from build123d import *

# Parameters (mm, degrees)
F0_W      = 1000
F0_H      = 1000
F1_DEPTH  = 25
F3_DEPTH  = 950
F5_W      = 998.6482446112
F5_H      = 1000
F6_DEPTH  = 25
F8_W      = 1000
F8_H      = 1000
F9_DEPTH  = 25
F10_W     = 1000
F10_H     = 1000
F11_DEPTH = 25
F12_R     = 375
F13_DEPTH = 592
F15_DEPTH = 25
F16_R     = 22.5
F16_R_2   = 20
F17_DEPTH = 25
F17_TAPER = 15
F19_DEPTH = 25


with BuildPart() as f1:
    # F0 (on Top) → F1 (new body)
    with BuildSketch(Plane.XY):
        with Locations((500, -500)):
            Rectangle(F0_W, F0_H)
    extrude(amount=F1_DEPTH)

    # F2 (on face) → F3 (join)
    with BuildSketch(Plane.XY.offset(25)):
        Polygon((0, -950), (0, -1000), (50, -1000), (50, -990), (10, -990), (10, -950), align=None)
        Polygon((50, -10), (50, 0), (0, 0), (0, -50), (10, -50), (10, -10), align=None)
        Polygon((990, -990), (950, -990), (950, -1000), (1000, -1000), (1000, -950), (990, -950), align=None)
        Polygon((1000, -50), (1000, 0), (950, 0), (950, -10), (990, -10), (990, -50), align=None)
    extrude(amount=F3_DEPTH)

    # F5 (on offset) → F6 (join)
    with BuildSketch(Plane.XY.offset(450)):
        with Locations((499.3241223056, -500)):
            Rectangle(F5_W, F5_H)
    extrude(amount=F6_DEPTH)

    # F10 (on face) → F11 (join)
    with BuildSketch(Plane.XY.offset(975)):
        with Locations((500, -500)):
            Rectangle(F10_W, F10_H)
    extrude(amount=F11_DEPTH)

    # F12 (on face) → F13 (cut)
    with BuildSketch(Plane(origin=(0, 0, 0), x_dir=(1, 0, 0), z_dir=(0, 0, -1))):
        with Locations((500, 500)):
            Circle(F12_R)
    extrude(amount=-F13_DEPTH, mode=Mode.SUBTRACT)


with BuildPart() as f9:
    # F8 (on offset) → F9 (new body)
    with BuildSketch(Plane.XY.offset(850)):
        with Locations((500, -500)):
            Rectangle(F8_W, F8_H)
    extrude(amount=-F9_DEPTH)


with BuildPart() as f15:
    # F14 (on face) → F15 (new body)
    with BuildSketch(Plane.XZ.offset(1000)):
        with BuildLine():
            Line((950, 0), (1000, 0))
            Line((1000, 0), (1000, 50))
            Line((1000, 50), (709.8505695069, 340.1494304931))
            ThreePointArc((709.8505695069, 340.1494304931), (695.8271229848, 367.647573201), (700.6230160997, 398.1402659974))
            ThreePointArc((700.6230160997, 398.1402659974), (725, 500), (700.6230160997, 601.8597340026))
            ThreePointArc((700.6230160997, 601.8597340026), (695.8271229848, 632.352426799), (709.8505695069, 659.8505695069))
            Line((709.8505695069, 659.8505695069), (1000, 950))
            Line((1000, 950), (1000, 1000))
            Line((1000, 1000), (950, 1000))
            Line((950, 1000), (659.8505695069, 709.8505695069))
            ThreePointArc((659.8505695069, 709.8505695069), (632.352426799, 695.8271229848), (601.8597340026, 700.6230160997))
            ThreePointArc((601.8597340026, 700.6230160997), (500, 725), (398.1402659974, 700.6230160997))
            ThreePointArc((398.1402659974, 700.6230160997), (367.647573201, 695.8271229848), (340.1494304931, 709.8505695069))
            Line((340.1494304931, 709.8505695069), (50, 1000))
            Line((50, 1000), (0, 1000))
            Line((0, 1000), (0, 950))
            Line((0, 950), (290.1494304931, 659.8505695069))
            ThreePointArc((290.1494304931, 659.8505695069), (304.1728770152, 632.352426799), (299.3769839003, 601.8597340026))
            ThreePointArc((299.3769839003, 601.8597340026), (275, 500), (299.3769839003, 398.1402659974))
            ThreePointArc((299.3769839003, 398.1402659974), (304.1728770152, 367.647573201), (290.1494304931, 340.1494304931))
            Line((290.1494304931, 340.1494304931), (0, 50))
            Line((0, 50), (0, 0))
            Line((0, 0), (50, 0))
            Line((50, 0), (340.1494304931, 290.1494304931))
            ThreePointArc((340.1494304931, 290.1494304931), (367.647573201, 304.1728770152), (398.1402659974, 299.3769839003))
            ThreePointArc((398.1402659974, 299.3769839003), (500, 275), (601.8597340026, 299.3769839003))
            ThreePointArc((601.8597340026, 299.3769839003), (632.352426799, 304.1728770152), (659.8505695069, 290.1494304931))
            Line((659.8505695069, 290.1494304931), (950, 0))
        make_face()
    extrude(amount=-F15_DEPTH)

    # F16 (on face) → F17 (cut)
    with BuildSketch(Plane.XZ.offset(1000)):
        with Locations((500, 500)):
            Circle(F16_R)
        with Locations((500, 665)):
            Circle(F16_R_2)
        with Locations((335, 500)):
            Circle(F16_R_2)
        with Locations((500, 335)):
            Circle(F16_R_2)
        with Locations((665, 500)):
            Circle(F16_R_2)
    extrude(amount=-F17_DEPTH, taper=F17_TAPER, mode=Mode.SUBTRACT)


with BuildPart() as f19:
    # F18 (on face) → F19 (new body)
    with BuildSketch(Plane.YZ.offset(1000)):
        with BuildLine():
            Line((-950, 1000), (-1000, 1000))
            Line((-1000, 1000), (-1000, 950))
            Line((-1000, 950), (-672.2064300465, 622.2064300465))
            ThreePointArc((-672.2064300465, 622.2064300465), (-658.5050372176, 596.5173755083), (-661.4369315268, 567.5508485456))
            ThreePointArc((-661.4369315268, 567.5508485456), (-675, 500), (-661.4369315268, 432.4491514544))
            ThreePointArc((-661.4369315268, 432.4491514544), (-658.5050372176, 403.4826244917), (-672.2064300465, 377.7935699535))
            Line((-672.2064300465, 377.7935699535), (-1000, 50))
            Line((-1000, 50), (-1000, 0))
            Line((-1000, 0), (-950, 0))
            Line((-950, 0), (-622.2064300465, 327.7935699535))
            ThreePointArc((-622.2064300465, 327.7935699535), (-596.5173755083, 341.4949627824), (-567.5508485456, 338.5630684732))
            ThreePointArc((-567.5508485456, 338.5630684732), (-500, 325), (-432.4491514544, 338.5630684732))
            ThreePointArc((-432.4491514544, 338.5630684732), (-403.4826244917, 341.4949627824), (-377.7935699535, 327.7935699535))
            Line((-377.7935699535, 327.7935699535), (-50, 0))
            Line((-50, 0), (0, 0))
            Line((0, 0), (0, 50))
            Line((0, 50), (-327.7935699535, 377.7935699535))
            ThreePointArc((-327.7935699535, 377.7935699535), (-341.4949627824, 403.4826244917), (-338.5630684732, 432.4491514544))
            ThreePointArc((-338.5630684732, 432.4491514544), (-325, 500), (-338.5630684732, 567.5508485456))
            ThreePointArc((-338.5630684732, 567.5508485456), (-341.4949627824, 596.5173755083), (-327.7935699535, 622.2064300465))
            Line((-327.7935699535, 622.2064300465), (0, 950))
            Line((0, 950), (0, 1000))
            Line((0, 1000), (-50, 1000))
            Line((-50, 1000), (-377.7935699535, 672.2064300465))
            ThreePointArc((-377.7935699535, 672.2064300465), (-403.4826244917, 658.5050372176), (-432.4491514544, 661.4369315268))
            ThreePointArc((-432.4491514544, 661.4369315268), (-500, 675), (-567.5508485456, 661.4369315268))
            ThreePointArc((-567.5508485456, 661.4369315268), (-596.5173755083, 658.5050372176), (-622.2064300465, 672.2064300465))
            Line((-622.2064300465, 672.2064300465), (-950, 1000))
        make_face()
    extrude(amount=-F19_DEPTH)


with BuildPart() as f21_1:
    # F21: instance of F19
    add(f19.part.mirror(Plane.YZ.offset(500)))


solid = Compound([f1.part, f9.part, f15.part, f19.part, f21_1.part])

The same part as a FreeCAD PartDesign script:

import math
import FreeCAD as App
import Part
import Sketcher

V = App.Vector


def add_polygon(sketch, points):
    """Adds a closed chain of lines whose ends are joined by coincident constraints."""
    first, n = sketch.GeometryCount, len(points)
    for a, b in zip(points, points[1:] + points[:1]):
        sketch.addGeometry(Part.LineSegment(App.Vector(*a, 0), App.Vector(*b, 0)), False)
    for i in range(n):
        sketch.addConstraint(Sketcher.Constraint("Coincident", first + i, 2, first + (i + 1) % n, 1))

doc = App.newDocument("Part")
body = doc.addObject("PartDesign::Body", "Body")

sketch1 = body.newObject("Sketcher::SketchObject", "Sketch")
sketch1.AttachmentSupport = (doc.getObject("XY_Plane"), [""])
sketch1.MapMode = "FlatFace"
add_polygon(sketch1, [(0, 0), (0, -1000), (1000, -1000), (1000, 0)])
sketch1.addConstraint([
    Sketcher.Constraint("Vertical", 0),
    Sketcher.Constraint("Horizontal", 1),
    Sketcher.Constraint("Vertical", 2),
    Sketcher.Constraint("Horizontal", 3),
    Sketcher.Constraint("Coincident", 3, 2, -1, 1),
    Sketcher.Constraint("Equal", 3, 0),
    Sketcher.Constraint("DistanceX", 1, 1, 1, 2, 1000.0),
])
pad1 = body.newObject("PartDesign::Pad", "Pad")
pad1.Profile = sketch1
pad1.Length = 25

sketch2 = body.newObject("Sketcher::SketchObject", "Sketch001")
sketch2.AttachmentSupport = (doc.getObject("XY_Plane"), [""])
sketch2.MapMode = "FlatFace"
sketch2.AttachmentOffset = App.Placement(V(0, 0, 25), App.Rotation())
add_polygon(sketch2, [(0, -950), (0, -1000), (50, -1000), (50, -990), (10, -990), (10, -950)])
add_polygon(sketch2, [(50, -10), (50, 0), (0, 0), (0, -50), (10, -50), (10, -10)])
add_polygon(sketch2, [(990, -990), (950, -990), (950, -1000), (1000, -1000), (1000, -950), (990, -950)])
add_polygon(sketch2, [(1000, -50), (1000, 0), (950, 0), (950, -10), (990, -10), (990, -50)])
sketch2.addConstraint([
    Sketcher.Constraint("Vertical", 0),
    Sketcher.Constraint("Horizontal", 1),
    Sketcher.Constraint("Vertical", 2),
    Sketcher.Constraint("Horizontal", 3),
    Sketcher.Constraint("Vertical", 4),
    Sketcher.Constraint("Horizontal", 5),
    Sketcher.Constraint("Vertical", 6),
    Sketcher.Constraint("Horizontal", 7),
    Sketcher.Constraint("Vertical", 8),
    Sketcher.Constraint("Horizontal", 9),
    Sketcher.Constraint("Vertical", 10),
    Sketcher.Constraint("Horizontal", 11),
    Sketcher.Constraint("Horizontal", 12),
    Sketcher.Constraint("Vertical", 13),
    Sketcher.Constraint("Horizontal", 14),
    Sketcher.Constraint("Vertical", 15),
    Sketcher.Constraint("Horizontal", 16),
    Sketcher.Constraint("Vertical", 17),
    Sketcher.Constraint("Vertical", 18),
    Sketcher.Constraint("Horizontal", 19),
    Sketcher.Constraint("Vertical", 20),
    Sketcher.Constraint("Horizontal", 21),
    Sketcher.Constraint("Vertical", 22),
    Sketcher.Constraint("Horizontal", 23),
    Sketcher.Constraint("Coincident", 7, 2, -1, 1),
    Sketcher.Constraint("PointOnObject", 0, 2, -2),
    Sketcher.Constraint("PointOnObject", 18, 2, -1),
    Sketcher.Constraint("Horizontal", 3, 2, 12, 2),
    Sketcher.Constraint("Horizontal", 1, 2, 13, 2),
    Sketcher.Constraint("Horizontal", 5, 2, 15, 2),
    Sketcher.Constraint("Horizontal", 11, 2, 20, 2),
    Sketcher.Constraint("Horizontal", 9, 2, 22, 2),
    Sketcher.Constraint("Vertical", 2, 2, 6, 2),
    Sketcher.Constraint("Vertical", 4, 2, 9, 2),
    Sketcher.Constraint("Vertical", 15, 2, 18, 2),
    Sketcher.Constraint("Vertical", 13, 2, 19, 2),
    Sketcher.Constraint("Vertical", 17, 2, 21, 2),
    Sketcher.Constraint("Equal", 11, 12),
    Sketcher.Constraint("Equal", 7, 14),
    Sketcher.Constraint("Equal", 19, 0),
    Sketcher.Constraint("Equal", 23, 2),
    Sketcher.Constraint("Equal", 2, 6),
    Sketcher.Constraint("Equal", 0, 8),
    Sketcher.Constraint("DistanceX", 1, 1, 1, 2, 50.0),
    Sketcher.Constraint("DistanceX", 3, 2, 3, 1, 40.0),
    Sketcher.Constraint("DistanceY", 0, 2, -1, 1, 1000.0),
    Sketcher.Constraint("DistanceX", -1, 1, 12, 2, 950.0),
])
pad2 = body.newObject("PartDesign::Pad", "Pad001")
pad2.Profile = sketch2
pad2.Length = 950

sketch3 = body.newObject("Sketcher::SketchObject", "Sketch002")
sketch3.AttachmentSupport = (doc.getObject("XY_Plane"), [""])
sketch3.MapMode = "FlatFace"
sketch3.AttachmentOffset = App.Placement(V(0, 0, 450), App.Rotation())
add_polygon(sketch3, [(0, 0), (0, -1000), (999, -1000), (999, 0)])
sketch3.addConstraint([
    Sketcher.Constraint("Vertical", 0),
    Sketcher.Constraint("Horizontal", 1),
    Sketcher.Constraint("Vertical", 2),
    Sketcher.Constraint("Horizontal", 3),
    Sketcher.Constraint("Coincident", 3, 2, -1, 1),
    Sketcher.Constraint("DistanceY", 0, 2, 0, 1, 1000.0),
    Sketcher.Constraint("DistanceX", 1, 1, 1, 2, 998.648245),
])
pad3 = body.newObject("PartDesign::Pad", "Pad002")
pad3.Profile = sketch3
pad3.Length = 25

sketch4 = body.newObject("Sketcher::SketchObject", "Sketch003")
sketch4.AttachmentSupport = (doc.getObject("XY_Plane"), [""])
sketch4.MapMode = "FlatFace"
sketch4.AttachmentOffset = App.Placement(V(0, 0, 975), App.Rotation())
add_polygon(sketch4, [(0, 0), (0, -1000), (1000, -1000), (1000, 0)])
sketch4.addConstraint([
    Sketcher.Constraint("Vertical", 0),
    Sketcher.Constraint("Horizontal", 1),
    Sketcher.Constraint("Vertical", 2),
    Sketcher.Constraint("Horizontal", 3),
    Sketcher.Constraint("Coincident", 3, 2, -1, 1),
    Sketcher.Constraint("Equal", 3, 0),
    Sketcher.Constraint("DistanceX", 1, 1, 1, 2, 1000.0),
])
pad4 = body.newObject("PartDesign::Pad", "Pad003")
pad4.Profile = sketch4
pad4.Length = 25

sketch5 = body.newObject("Sketcher::SketchObject", "Sketch004")
sketch5.AttachmentSupport = (doc.getObject("XY_Plane"), [""])
sketch5.MapMode = "FlatFace"
sketch5.addGeometry(Part.Circle(V(500, -500, 0), V(0, 0, 1), 375), False)
sketch5.addConstraint([
    Sketcher.Constraint("Diameter", 0, 750.0),
    Sketcher.Constraint("DistanceX", -1, 1, 0, 3, 500.0),
    Sketcher.Constraint("DistanceY", 0, 3, -1, 1, 500.0),
])
pocket1 = body.newObject("PartDesign::Pocket", "Pocket")
pocket1.Profile = sketch5
pocket1.Length = 592
pocket1.Reversed = True
body2 = doc.addObject("PartDesign::Body", "Body001")

sketch6 = body2.newObject("Sketcher::SketchObject", "Sketch005")
sketch6.AttachmentSupport = (doc.getObject("XY_Plane001"), [""])
sketch6.MapMode = "FlatFace"
sketch6.AttachmentOffset = App.Placement(V(0, 0, 850), App.Rotation())
add_polygon(sketch6, [(0, 0), (0, -1000), (1000, -1000), (1000, 0)])
sketch6.addConstraint([
    Sketcher.Constraint("Vertical", 0),
    Sketcher.Constraint("Horizontal", 1),
    Sketcher.Constraint("Vertical", 2),
    Sketcher.Constraint("Horizontal", 3),
    Sketcher.Constraint("Coincident", 3, 2, -1, 1),
    Sketcher.Constraint("Equal", 3, 0),
    Sketcher.Constraint("DistanceX", 1, 1, 1, 2, 1000.0),
])
pad5 = body2.newObject("PartDesign::Pad", "Pad004")
pad5.Profile = sketch6
pad5.Length = 25
pad5.Reversed = True
body3 = doc.addObject("PartDesign::Body", "Body002")

sketch7 = body3.newObject("Sketcher::SketchObject", "Sketch006")
sketch7.AttachmentSupport = (doc.getObject("XZ_Plane002"), [""])
sketch7.MapMode = "FlatFace"
sketch7.AttachmentOffset = App.Placement(V(0, 0, 1000), App.Rotation())
sketch7.addGeometry([
    Part.LineSegment(V(950, 0, 0), V(1000, 0, 0)),
    Part.LineSegment(V(1000, 0, 0), V(1000, 50, 0)),
    Part.LineSegment(V(1000, 50, 0), V(710, 340, 0)),
    Part.ArcOfCircle(Part.Circle(V(745, 376, 0), V(0, 0, 1), 50), math.radians(153), math.radians(225)),
    Part.ArcOfCircle(Part.Circle(V(500, 500, 0), V(0, 0, 1), 225), math.radians(-27), math.radians(27)),
    Part.ArcOfCircle(Part.Circle(V(745, 624, 0), V(0, 0, 1), 50), math.radians(135), math.radians(207)),
    Part.LineSegment(V(710, 660, 0), V(1000, 950, 0)),
    Part.LineSegment(V(1000, 950, 0), V(1000, 1000, 0)),
    Part.LineSegment(V(1000, 1000, 0), V(950, 1000, 0)),
    Part.LineSegment(V(950, 1000, 0), V(660, 710, 0)),
    Part.ArcOfCircle(Part.Circle(V(624, 745, 0), V(0, 0, 1), 50), math.radians(-117), math.radians(-45)),
    Part.ArcOfCircle(Part.Circle(V(500, 500, 0), V(0, 0, 1), 225), math.radians(63), math.radians(117)),
    Part.ArcOfCircle(Part.Circle(V(376, 745, 0), V(0, 0, 1), 50), math.radians(-135), math.radians(-63)),
    Part.LineSegment(V(340, 710, 0), V(50, 1000, 0)),
    Part.LineSegment(V(50, 1000, 0), V(0, 1000, 0)),
    Part.LineSegment(V(0, 1000, 0), V(0, 950, 0)),
    Part.LineSegment(V(0, 950, 0), V(290, 660, 0)),
    Part.ArcOfCircle(Part.Circle(V(255, 624, 0), V(0, 0, 1), 50), math.radians(-27), math.radians(45)),
    Part.ArcOfCircle(Part.Circle(V(500, 500, 0), V(0, 0, 1), 225), math.radians(153), math.radians(207)),
    Part.ArcOfCircle(Part.Circle(V(255, 376, 0), V(0, 0, 1), 50), math.radians(-45), math.radians(27)),
    Part.LineSegment(V(290, 340, 0), V(0, 50, 0)),
    Part.LineSegment(V(0, 50, 0), V(0, 0, 0)),
    Part.LineSegment(V(0, 0, 0), V(50, 0, 0)),
    Part.LineSegment(V(50, 0, 0), V(340, 290, 0)),
    Part.ArcOfCircle(Part.Circle(V(376, 255, 0), V(0, 0, 1), 50), math.radians(63), math.radians(135)),
    Part.ArcOfCircle(Part.Circle(V(500, 500, 0), V(0, 0, 1), 225), math.radians(-117), math.radians(-63)),
    Part.ArcOfCircle(Part.Circle(V(624, 255, 0), V(0, 0, 1), 50), math.radians(45), math.radians(117)),
    Part.LineSegment(V(660, 290, 0), V(950, 0, 0)),
], False)
sketch7.addConstraint([
    Sketcher.Constraint("Coincident", 0, 2, 1, 1),
    Sketcher.Constraint("Coincident", 1, 2, 2, 1),
    Sketcher.Constraint("Tangent", 2, 2, 3, 2),
    Sketcher.Constraint("Tangent", 3, 1, 4, 1),
    Sketcher.Constraint("Tangent", 4, 2, 5, 2),
    Sketcher.Constraint("Tangent", 5, 1, 6, 1),
    Sketcher.Constraint("Coincident", 6, 2, 7, 1),
    Sketcher.Constraint("Coincident", 7, 2, 8, 1),
    Sketcher.Constraint("Coincident", 8, 2, 9, 1),
    Sketcher.Constraint("Tangent", 9, 2, 10, 2),
    Sketcher.Constraint("Tangent", 10, 1, 11, 1),
    Sketcher.Constraint("Tangent", 11, 2, 12, 2),
    Sketcher.Constraint("Tangent", 12, 1, 13, 1),
    Sketcher.Constraint("Coincident", 13, 2, 14, 1),
    Sketcher.Constraint("Coincident", 14, 2, 15, 1),
    Sketcher.Constraint("Coincident", 15, 2, 16, 1),
    Sketcher.Constraint("Tangent", 16, 2, 17, 2),
    Sketcher.Constraint("Tangent", 17, 1, 18, 1),
    Sketcher.Constraint("Tangent", 18, 2, 19, 2),
    Sketcher.Constraint("Tangent", 19, 1, 20, 1),
    Sketcher.Constraint("Coincident", 20, 2, 21, 1),
    Sketcher.Constraint("Coincident", 21, 2, 22, 1),
    Sketcher.Constraint("Coincident", 22, 2, 23, 1),
    Sketcher.Constraint("Tangent", 23, 2, 24, 2),
    Sketcher.Constraint("Tangent", 24, 1, 25, 1),
    Sketcher.Constraint("Tangent", 25, 2, 26, 2),
    Sketcher.Constraint("Tangent", 26, 1, 27, 1),
    Sketcher.Constraint("Coincident", 27, 2, 0, 1),
    Sketcher.Constraint("Horizontal", 0),
    Sketcher.Constraint("Vertical", 1),
    Sketcher.Constraint("Vertical", 7),
    Sketcher.Constraint("Horizontal", 8),
    Sketcher.Constraint("Horizontal", 14),
    Sketcher.Constraint("Vertical", 15),
    Sketcher.Constraint("Vertical", 21),
    Sketcher.Constraint("Horizontal", 22),
    Sketcher.Constraint("Coincident", 21, 2, -1, 1),
    Sketcher.Constraint("Coincident", 11, 3, 4, 3),
    Sketcher.Constraint("Coincident", 18, 3, 4, 3),
    Sketcher.Constraint("Coincident", 25, 3, 4, 3),
    Sketcher.Constraint("Equal", 3, 5),
    Sketcher.Constraint("Equal", 5, 10),
    Sketcher.Constraint("Equal", 4, 11),
    Sketcher.Constraint("Equal", 10, 12),
    Sketcher.Constraint("Equal", 12, 17),
    Sketcher.Constraint("Equal", 11, 18),
    Sketcher.Constraint("Equal", 17, 19),
    Sketcher.Constraint("Equal", 19, 24),
    Sketcher.Constraint("Equal", 18, 25),
    Sketcher.Constraint("Equal", 24, 26),
    Sketcher.Constraint("PointOnObject", 0, 2, -1),
    Sketcher.Constraint("PointOnObject", 14, 2, -2),
    Sketcher.Constraint("Perpendicular", 2, 6),
    Sketcher.Constraint("Parallel", 6, 9),
    Sketcher.Constraint("Perpendicular", 9, 13),
    Sketcher.Constraint("Parallel", 13, 16),
    Sketcher.Constraint("Perpendicular", 16, 20),
    Sketcher.Constraint("Parallel", 20, 23),
    Sketcher.Constraint("Perpendicular", 23, 27),
    Sketcher.Constraint("Horizontal", 10, 3, 12, 3),
    Sketcher.Constraint("Horizontal", 5, 3, 17, 3),
    Sketcher.Constraint("Horizontal", 3, 3, 19, 3),
    Sketcher.Constraint("Horizontal", 24, 3, 26, 3),
    Sketcher.Constraint("Horizontal", 8, 2, 13, 2),
    Sketcher.Constraint("Horizontal", 6, 2, 15, 2),
    Sketcher.Constraint("Horizontal", 1, 2, 20, 2),
    Sketcher.Constraint("Vertical", 3, 3, 5, 3),
    Sketcher.Constraint("Vertical", 12, 3, 24, 3),
    Sketcher.Constraint("Vertical", 1, 2, 6, 2),
    Sketcher.Constraint("Vertical", 13, 2, 22, 2),
    Sketcher.Constraint("Equal", 22, 1),
    Sketcher.Constraint("Equal", 6, 9),
    Sketcher.Constraint("Radius", 3, 50.0),
    Sketcher.Constraint("Radius", 4, 225.0),
    Sketcher.Constraint("DistanceX", 0, 1, 0, 2, 50.0),
    Sketcher.Constraint("DistanceX", -1, 1, 4, 3, 500.0),
])
pad6 = body3.newObject("PartDesign::Pad", "Pad005")
pad6.Profile = sketch7
pad6.Length = 25
pad6.Reversed = True

sketch8 = body3.newObject("Sketcher::SketchObject", "Sketch007")
sketch8.AttachmentSupport = (doc.getObject("XZ_Plane002"), [""])
sketch8.MapMode = "FlatFace"
sketch8.AttachmentOffset = App.Placement(V(0, 0, 1000), App.Rotation())
sketch8.addGeometry([
    Part.Circle(V(500, 500, 0), V(0, 0, 1), 22),
    Part.Circle(V(500, 665, 0), V(0, 0, 1), 20),
    Part.Circle(V(335, 500, 0), V(0, 0, 1), 20),
    Part.Circle(V(500, 335, 0), V(0, 0, 1), 20),
    Part.Circle(V(665, 500, 0), V(0, 0, 1), 20),
], False)
sketch8.addConstraint([
    Sketcher.Constraint("Equal", 1, 2),
    Sketcher.Constraint("Equal", 2, 3),
    Sketcher.Constraint("Equal", 3, 4),
    Sketcher.Constraint("Horizontal", 0, 3, 2, 3),
    Sketcher.Constraint("Horizontal", 2, 3, 4, 3),
    Sketcher.Constraint("Vertical", 0, 3, 1, 3),
    Sketcher.Constraint("Vertical", 1, 3, 3, 3),
    Sketcher.Constraint("Diameter", 0, 45.0),
    Sketcher.Constraint("Diameter", 1, 40.0),
    Sketcher.Constraint("DistanceX", -1, 1, 0, 3, 500.0),
    Sketcher.Constraint("DistanceY", -1, 1, 0, 3, 500.0),
    Sketcher.Constraint("DistanceY", -1, 1, 1, 3, 665.0),
    Sketcher.Constraint("DistanceX", -1, 1, 2, 3, 335.0),
    Sketcher.Constraint("DistanceY", -1, 1, 3, 3, 335.0),
    Sketcher.Constraint("DistanceX", -1, 1, 4, 3, 665.0),
])
pocket2 = body3.newObject("PartDesign::Pocket", "Pocket001")
pocket2.Profile = sketch8
pocket2.Length = 25
pocket2.TaperAngle = -15
body4 = doc.addObject("PartDesign::Body", "Body003")

sketch9 = body4.newObject("Sketcher::SketchObject", "Sketch008")
sketch9.AttachmentSupport = (doc.getObject("YZ_Plane003"), [""])
sketch9.MapMode = "FlatFace"
sketch9.AttachmentOffset = App.Placement(V(0, 0, 1000), App.Rotation())
sketch9.addGeometry([
    Part.LineSegment(V(-950, 1000, 0), V(-1000, 1000, 0)),
    Part.LineSegment(V(-1000, 1000, 0), V(-1000, 950, 0)),
    Part.LineSegment(V(-1000, 950, 0), V(-672, 622, 0)),
    Part.ArcOfCircle(Part.Circle(V(-708, 587, 0), V(0, 0, 1), 50), math.radians(-23), math.radians(45)),
    Part.ArcOfCircle(Part.Circle(V(-500, 500, 0), V(0, 0, 1), 175), math.radians(157), math.radians(203)),
    Part.ArcOfCircle(Part.Circle(V(-708, 413, 0), V(0, 0, 1), 50), math.radians(-45), math.radians(23)),
    Part.LineSegment(V(-672, 378, 0), V(-1000, 50, 0)),
    Part.LineSegment(V(-1000, 50, 0), V(-1000, 0, 0)),
    Part.LineSegment(V(-1000, 0, 0), V(-950, 0, 0)),
    Part.LineSegment(V(-950, 0, 0), V(-622, 328, 0)),
    Part.ArcOfCircle(Part.Circle(V(-587, 292, 0), V(0, 0, 1), 50), math.radians(67), math.radians(135)),
    Part.ArcOfCircle(Part.Circle(V(-500, 500, 0), V(0, 0, 1), 175), math.radians(-113), math.radians(-67)),
    Part.ArcOfCircle(Part.Circle(V(-413, 292, 0), V(0, 0, 1), 50), math.radians(45), math.radians(113)),
    Part.LineSegment(V(-378, 328, 0), V(-50, 0, 0)),
    Part.LineSegment(V(-50, 0, 0), V(0, 0, 0)),
    Part.LineSegment(V(0, 0, 0), V(0, 50, 0)),
    Part.LineSegment(V(0, 50, 0), V(-328, 378, 0)),
    Part.ArcOfCircle(Part.Circle(V(-292, 413, 0), V(0, 0, 1), 50), math.radians(157), math.radians(225)),
    Part.ArcOfCircle(Part.Circle(V(-500, 500, 0), V(0, 0, 1), 175), math.radians(-23), math.radians(23)),
    Part.ArcOfCircle(Part.Circle(V(-292, 587, 0), V(0, 0, 1), 50), math.radians(135), math.radians(203)),
    Part.LineSegment(V(-328, 622, 0), V(0, 950, 0)),
    Part.LineSegment(V(0, 950, 0), V(0, 1000, 0)),
    Part.LineSegment(V(0, 1000, 0), V(-50, 1000, 0)),
    Part.LineSegment(V(-50, 1000, 0), V(-378, 672, 0)),
    Part.ArcOfCircle(Part.Circle(V(-413, 708, 0), V(0, 0, 1), 50), math.radians(-113), math.radians(-45)),
    Part.ArcOfCircle(Part.Circle(V(-500, 500, 0), V(0, 0, 1), 175), math.radians(67), math.radians(113)),
    Part.ArcOfCircle(Part.Circle(V(-587, 708, 0), V(0, 0, 1), 50), math.radians(-135), math.radians(-67)),
    Part.LineSegment(V(-622, 672, 0), V(-950, 1000, 0)),
], False)
sketch9.addConstraint([
    Sketcher.Constraint("Coincident", 0, 2, 1, 1),
    Sketcher.Constraint("Coincident", 1, 2, 2, 1),
    Sketcher.Constraint("Tangent", 2, 2, 3, 2),
    Sketcher.Constraint("Tangent", 3, 1, 4, 1),
    Sketcher.Constraint("Tangent", 4, 2, 5, 2),
    Sketcher.Constraint("Tangent", 5, 1, 6, 1),
    Sketcher.Constraint("Coincident", 6, 2, 7, 1),
    Sketcher.Constraint("Coincident", 7, 2, 8, 1),
    Sketcher.Constraint("Coincident", 8, 2, 9, 1),
    Sketcher.Constraint("Tangent", 9, 2, 10, 2),
    Sketcher.Constraint("Tangent", 10, 1, 11, 1),
    Sketcher.Constraint("Tangent", 11, 2, 12, 2),
    Sketcher.Constraint("Tangent", 12, 1, 13, 1),
    Sketcher.Constraint("Coincident", 13, 2, 14, 1),
    Sketcher.Constraint("Coincident", 14, 2, 15, 1),
    Sketcher.Constraint("Coincident", 15, 2, 16, 1),
    Sketcher.Constraint("Tangent", 16, 2, 17, 2),
    Sketcher.Constraint("Tangent", 17, 1, 18, 1),
    Sketcher.Constraint("Tangent", 18, 2, 19, 2),
    Sketcher.Constraint("Tangent", 19, 1, 20, 1),
    Sketcher.Constraint("Coincident", 20, 2, 21, 1),
    Sketcher.Constraint("Coincident", 21, 2, 22, 1),
    Sketcher.Constraint("Coincident", 22, 2, 23, 1),
    Sketcher.Constraint("Tangent", 23, 2, 24, 2),
    Sketcher.Constraint("Tangent", 24, 1, 25, 1),
    Sketcher.Constraint("Tangent", 25, 2, 26, 2),
    Sketcher.Constraint("Tangent", 26, 1, 27, 1),
    Sketcher.Constraint("Coincident", 27, 2, 0, 1),
    Sketcher.Constraint("Horizontal", 0),
    Sketcher.Constraint("Vertical", 1),
    Sketcher.Constraint("Vertical", 7),
    Sketcher.Constraint("Horizontal", 8),
    Sketcher.Constraint("Horizontal", 14),
    Sketcher.Constraint("Vertical", 15),
    Sketcher.Constraint("Vertical", 21),
    Sketcher.Constraint("Horizontal", 22),
    Sketcher.Constraint("Coincident", 14, 2, -1, 1),
    Sketcher.Constraint("Coincident", 11, 3, 4, 3),
    Sketcher.Constraint("Coincident", 18, 3, 4, 3),
    Sketcher.Constraint("Coincident", 25, 3, 4, 3),
    Sketcher.Constraint("Equal", 3, 5),
    Sketcher.Constraint("Equal", 5, 10),
    Sketcher.Constraint("Equal", 4, 11),
    Sketcher.Constraint("Equal", 10, 12),
    Sketcher.Constraint("Equal", 12, 17),
    Sketcher.Constraint("Equal", 11, 18),
    Sketcher.Constraint("Equal", 17, 19),
    Sketcher.Constraint("Equal", 19, 24),
    Sketcher.Constraint("Equal", 18, 25),
    Sketcher.Constraint("Equal", 24, 26),
    Sketcher.Constraint("PointOnObject", 7, 2, -1),
    Sketcher.Constraint("PointOnObject", 20, 2, -2),
    Sketcher.Constraint("Perpendicular", 2, 6),
    Sketcher.Constraint("Parallel", 6, 9),
    Sketcher.Constraint("Perpendicular", 9, 13),
    Sketcher.Constraint("Parallel", 13, 16),
    Sketcher.Constraint("Perpendicular", 16, 20),
    Sketcher.Constraint("Parallel", 20, 23),
    Sketcher.Constraint("Perpendicular", 23, 27),
    Sketcher.Constraint("Horizontal", 10, 3, 12, 3),
    Sketcher.Constraint("Horizontal", 5, 3, 17, 3),
    Sketcher.Constraint("Horizontal", 3, 3, 19, 3),
    Sketcher.Constraint("Horizontal", 24, 3, 26, 3),
    Sketcher.Constraint("Horizontal", 6, 2, 15, 2),
    Sketcher.Constraint("Horizontal", 1, 2, 20, 2),
    Sketcher.Constraint("Horizontal", 0, 2, 21, 2),
    Sketcher.Constraint("Vertical", 3, 3, 5, 3),
    Sketcher.Constraint("Vertical", 12, 3, 24, 3),
    Sketcher.Constraint("Vertical", 1, 2, 6, 2),
    Sketcher.Constraint("Vertical", 13, 2, 22, 2),
    Sketcher.Constraint("Equal", 22, 1),
    Sketcher.Constraint("Equal", 6, 9),
    Sketcher.Constraint("Radius", 3, 50.0),
    Sketcher.Constraint("Radius", 4, 175.0),
    Sketcher.Constraint("DistanceX", 0, 2, 0, 1, 50.0),
    Sketcher.Constraint("DistanceX", 4, 3, -1, 1, 500.0),
])
pad7 = body4.newObject("PartDesign::Pad", "Pad006")
pad7.Profile = sketch9
pad7.Length = 25
pad7.Reversed = True
body5 = doc.addObject("PartDesign::Body", "Body004")
doc.recompute()

mirroring = doc.addObject("Part::Mirroring", "Mirroring")
mirroring.Source = body4
mirroring.Base = V(500, 0, 0)
mirroring.Normal = V(1, 0, 0)
body5.BaseFeature = mirroring
doc.recompute()
mirroring.Visibility = False

doc.recompute()
